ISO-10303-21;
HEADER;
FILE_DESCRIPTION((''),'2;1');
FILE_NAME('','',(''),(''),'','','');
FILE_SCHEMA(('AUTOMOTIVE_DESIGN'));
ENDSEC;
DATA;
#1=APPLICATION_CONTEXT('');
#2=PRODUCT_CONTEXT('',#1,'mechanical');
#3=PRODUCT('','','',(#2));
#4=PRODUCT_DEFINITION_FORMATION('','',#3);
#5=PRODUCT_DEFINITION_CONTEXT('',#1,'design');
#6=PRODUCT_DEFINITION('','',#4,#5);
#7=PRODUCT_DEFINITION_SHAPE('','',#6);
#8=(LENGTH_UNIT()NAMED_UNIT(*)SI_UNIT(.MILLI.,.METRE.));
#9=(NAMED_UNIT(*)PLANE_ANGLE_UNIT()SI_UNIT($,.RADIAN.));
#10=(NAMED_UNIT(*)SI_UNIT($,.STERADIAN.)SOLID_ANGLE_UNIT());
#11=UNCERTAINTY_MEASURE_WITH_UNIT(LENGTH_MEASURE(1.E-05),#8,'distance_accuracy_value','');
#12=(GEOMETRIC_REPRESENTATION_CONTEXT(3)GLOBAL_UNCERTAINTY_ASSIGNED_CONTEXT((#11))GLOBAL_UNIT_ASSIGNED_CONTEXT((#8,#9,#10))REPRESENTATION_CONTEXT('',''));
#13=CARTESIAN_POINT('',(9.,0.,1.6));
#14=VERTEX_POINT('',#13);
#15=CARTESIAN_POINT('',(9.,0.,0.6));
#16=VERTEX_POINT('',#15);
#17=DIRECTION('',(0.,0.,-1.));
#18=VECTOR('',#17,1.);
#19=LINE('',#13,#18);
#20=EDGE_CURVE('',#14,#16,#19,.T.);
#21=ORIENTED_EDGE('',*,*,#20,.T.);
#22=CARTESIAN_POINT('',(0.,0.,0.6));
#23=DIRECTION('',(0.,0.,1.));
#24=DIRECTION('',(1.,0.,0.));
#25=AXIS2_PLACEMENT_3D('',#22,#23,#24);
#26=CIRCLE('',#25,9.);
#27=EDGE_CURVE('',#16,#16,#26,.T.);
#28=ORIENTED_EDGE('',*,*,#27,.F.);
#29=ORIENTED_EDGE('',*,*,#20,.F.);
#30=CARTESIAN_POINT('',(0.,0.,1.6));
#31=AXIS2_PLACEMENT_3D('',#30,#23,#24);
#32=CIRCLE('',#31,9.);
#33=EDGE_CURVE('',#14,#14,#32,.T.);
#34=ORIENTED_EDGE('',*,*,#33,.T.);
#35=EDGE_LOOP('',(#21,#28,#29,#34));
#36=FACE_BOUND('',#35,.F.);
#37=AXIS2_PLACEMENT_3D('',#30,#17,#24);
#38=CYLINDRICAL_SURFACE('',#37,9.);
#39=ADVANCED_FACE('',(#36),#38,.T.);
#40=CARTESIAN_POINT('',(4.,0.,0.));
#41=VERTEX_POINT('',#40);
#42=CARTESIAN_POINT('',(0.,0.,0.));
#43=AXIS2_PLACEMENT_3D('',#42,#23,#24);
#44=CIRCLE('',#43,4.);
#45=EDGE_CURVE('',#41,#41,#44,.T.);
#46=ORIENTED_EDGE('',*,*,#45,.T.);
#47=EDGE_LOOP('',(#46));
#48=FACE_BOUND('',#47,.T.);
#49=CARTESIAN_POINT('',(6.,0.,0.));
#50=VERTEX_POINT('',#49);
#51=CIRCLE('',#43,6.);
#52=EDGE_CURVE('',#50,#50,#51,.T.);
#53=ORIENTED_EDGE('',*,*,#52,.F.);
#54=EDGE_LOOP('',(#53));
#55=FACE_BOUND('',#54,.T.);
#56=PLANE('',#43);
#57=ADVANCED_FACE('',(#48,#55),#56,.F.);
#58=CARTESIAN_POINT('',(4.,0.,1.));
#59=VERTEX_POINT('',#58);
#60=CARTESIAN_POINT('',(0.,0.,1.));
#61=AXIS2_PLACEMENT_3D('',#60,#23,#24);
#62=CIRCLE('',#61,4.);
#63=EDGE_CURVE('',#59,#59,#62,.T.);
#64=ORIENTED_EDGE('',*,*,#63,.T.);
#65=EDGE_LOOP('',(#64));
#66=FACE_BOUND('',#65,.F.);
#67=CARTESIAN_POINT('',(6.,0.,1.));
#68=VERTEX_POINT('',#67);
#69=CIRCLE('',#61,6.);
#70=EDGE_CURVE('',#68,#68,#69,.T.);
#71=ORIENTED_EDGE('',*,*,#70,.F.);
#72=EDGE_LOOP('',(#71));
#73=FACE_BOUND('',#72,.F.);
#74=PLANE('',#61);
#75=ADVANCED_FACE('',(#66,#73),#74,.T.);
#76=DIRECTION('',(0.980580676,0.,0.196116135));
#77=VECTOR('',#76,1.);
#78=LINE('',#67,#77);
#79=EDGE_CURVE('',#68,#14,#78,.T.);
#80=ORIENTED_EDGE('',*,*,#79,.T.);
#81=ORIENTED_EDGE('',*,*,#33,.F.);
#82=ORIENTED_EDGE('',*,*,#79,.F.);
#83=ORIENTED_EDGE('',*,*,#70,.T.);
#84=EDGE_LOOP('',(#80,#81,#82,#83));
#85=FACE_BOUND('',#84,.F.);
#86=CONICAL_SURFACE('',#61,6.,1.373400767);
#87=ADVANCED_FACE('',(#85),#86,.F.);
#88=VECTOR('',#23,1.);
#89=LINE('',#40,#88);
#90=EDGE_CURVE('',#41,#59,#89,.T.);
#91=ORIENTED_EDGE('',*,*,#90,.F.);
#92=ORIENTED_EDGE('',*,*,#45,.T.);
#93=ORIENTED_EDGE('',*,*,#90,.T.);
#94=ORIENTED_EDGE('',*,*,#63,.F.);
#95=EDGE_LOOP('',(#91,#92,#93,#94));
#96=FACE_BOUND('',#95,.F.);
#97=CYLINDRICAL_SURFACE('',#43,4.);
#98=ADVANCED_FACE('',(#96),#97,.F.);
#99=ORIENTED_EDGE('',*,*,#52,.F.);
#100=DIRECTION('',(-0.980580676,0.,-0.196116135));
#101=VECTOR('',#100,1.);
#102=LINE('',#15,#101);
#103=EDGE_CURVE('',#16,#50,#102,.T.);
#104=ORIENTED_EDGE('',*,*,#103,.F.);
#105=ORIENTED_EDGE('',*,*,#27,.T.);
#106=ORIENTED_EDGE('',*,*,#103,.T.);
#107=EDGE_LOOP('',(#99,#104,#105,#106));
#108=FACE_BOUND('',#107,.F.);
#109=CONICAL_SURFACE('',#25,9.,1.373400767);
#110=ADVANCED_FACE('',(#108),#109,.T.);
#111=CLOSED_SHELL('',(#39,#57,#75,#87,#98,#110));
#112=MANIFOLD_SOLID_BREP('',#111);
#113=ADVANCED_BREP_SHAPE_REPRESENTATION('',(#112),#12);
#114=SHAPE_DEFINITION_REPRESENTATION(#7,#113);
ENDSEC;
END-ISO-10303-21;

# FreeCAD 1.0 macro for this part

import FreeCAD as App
import Part
import Sketcher

V = App.Vector
Q = App.Units.Quantity

doc = App.newDocument("Part")
body = doc.addObject("PartDesign::Body", "Body")

sketch1 = body.newObject("Sketcher::SketchObject", "Sketch")
sketch1.AttachmentSupport = (doc.getObject("XZ_Plane"), [""])
sketch1.MapMode = "FlatFace"
sketch1.addGeometry([
    Part.LineSegment(V(6, 0, 0), V(4, 0, 0)),
    Part.LineSegment(V(4, 0, 0), V(4, 1, 0)),
    Part.LineSegment(V(4, 1, 0), V(6, 1, 0)),
    Part.LineSegment(V(6, 1, 0), V(9, 1.6, 0)),
    Part.LineSegment(V(9, 1.6, 0), V(9, 0.6, 0)),
    Part.LineSegment(V(9, 0.6, 0), V(6, 0, 0)),
], False)
sketch1.addConstraint([
    Sketcher.Constraint("Coincident", 0, 2, 1, 1),
    Sketcher.Constraint("Coincident", 1, 2, 2, 1),
    Sketcher.Constraint("Coincident", 2, 2, 3, 1),
    Sketcher.Constraint("Coincident", 3, 2, 4, 1),
    Sketcher.Constraint("Coincident", 4, 2, 5, 1),
    Sketcher.Constraint("Coincident", 5, 2, 0, 1),
    Sketcher.Constraint("Horizontal", 0),
    Sketcher.Constraint("Vertical", 1),
    Sketcher.Constraint("Horizontal", 2),
    Sketcher.Constraint("Vertical", 4),
    Sketcher.Constraint("PointOnObject", 0, 2, -1),
    Sketcher.Constraint("Parallel", 3, 5),
    Sketcher.Constraint("Vertical", 2, 2, 5, 2),
    Sketcher.Constraint("DistanceX", 0, 2, 0, 1, Q("2 mm")),
    Sketcher.Constraint("DistanceY", 1, 1, 1, 2, Q("1 mm")),
    Sketcher.Constraint("DistanceX", -1, 1, 0, 2, Q("4 mm")),
    Sketcher.Constraint("DistanceX", -1, 1, 3, 2, Q("9 mm")),
    Sketcher.Constraint("DistanceY", -1, 1, 3, 2, Q("1.6 mm")),
])
revolution = body.newObject("PartDesign::Revolution", "Revolution")
revolution.Profile = sketch1
revolution.ReferenceAxis = (sketch1, ["V_Axis"])
revolution.Angle = 360

doc.recompute()
